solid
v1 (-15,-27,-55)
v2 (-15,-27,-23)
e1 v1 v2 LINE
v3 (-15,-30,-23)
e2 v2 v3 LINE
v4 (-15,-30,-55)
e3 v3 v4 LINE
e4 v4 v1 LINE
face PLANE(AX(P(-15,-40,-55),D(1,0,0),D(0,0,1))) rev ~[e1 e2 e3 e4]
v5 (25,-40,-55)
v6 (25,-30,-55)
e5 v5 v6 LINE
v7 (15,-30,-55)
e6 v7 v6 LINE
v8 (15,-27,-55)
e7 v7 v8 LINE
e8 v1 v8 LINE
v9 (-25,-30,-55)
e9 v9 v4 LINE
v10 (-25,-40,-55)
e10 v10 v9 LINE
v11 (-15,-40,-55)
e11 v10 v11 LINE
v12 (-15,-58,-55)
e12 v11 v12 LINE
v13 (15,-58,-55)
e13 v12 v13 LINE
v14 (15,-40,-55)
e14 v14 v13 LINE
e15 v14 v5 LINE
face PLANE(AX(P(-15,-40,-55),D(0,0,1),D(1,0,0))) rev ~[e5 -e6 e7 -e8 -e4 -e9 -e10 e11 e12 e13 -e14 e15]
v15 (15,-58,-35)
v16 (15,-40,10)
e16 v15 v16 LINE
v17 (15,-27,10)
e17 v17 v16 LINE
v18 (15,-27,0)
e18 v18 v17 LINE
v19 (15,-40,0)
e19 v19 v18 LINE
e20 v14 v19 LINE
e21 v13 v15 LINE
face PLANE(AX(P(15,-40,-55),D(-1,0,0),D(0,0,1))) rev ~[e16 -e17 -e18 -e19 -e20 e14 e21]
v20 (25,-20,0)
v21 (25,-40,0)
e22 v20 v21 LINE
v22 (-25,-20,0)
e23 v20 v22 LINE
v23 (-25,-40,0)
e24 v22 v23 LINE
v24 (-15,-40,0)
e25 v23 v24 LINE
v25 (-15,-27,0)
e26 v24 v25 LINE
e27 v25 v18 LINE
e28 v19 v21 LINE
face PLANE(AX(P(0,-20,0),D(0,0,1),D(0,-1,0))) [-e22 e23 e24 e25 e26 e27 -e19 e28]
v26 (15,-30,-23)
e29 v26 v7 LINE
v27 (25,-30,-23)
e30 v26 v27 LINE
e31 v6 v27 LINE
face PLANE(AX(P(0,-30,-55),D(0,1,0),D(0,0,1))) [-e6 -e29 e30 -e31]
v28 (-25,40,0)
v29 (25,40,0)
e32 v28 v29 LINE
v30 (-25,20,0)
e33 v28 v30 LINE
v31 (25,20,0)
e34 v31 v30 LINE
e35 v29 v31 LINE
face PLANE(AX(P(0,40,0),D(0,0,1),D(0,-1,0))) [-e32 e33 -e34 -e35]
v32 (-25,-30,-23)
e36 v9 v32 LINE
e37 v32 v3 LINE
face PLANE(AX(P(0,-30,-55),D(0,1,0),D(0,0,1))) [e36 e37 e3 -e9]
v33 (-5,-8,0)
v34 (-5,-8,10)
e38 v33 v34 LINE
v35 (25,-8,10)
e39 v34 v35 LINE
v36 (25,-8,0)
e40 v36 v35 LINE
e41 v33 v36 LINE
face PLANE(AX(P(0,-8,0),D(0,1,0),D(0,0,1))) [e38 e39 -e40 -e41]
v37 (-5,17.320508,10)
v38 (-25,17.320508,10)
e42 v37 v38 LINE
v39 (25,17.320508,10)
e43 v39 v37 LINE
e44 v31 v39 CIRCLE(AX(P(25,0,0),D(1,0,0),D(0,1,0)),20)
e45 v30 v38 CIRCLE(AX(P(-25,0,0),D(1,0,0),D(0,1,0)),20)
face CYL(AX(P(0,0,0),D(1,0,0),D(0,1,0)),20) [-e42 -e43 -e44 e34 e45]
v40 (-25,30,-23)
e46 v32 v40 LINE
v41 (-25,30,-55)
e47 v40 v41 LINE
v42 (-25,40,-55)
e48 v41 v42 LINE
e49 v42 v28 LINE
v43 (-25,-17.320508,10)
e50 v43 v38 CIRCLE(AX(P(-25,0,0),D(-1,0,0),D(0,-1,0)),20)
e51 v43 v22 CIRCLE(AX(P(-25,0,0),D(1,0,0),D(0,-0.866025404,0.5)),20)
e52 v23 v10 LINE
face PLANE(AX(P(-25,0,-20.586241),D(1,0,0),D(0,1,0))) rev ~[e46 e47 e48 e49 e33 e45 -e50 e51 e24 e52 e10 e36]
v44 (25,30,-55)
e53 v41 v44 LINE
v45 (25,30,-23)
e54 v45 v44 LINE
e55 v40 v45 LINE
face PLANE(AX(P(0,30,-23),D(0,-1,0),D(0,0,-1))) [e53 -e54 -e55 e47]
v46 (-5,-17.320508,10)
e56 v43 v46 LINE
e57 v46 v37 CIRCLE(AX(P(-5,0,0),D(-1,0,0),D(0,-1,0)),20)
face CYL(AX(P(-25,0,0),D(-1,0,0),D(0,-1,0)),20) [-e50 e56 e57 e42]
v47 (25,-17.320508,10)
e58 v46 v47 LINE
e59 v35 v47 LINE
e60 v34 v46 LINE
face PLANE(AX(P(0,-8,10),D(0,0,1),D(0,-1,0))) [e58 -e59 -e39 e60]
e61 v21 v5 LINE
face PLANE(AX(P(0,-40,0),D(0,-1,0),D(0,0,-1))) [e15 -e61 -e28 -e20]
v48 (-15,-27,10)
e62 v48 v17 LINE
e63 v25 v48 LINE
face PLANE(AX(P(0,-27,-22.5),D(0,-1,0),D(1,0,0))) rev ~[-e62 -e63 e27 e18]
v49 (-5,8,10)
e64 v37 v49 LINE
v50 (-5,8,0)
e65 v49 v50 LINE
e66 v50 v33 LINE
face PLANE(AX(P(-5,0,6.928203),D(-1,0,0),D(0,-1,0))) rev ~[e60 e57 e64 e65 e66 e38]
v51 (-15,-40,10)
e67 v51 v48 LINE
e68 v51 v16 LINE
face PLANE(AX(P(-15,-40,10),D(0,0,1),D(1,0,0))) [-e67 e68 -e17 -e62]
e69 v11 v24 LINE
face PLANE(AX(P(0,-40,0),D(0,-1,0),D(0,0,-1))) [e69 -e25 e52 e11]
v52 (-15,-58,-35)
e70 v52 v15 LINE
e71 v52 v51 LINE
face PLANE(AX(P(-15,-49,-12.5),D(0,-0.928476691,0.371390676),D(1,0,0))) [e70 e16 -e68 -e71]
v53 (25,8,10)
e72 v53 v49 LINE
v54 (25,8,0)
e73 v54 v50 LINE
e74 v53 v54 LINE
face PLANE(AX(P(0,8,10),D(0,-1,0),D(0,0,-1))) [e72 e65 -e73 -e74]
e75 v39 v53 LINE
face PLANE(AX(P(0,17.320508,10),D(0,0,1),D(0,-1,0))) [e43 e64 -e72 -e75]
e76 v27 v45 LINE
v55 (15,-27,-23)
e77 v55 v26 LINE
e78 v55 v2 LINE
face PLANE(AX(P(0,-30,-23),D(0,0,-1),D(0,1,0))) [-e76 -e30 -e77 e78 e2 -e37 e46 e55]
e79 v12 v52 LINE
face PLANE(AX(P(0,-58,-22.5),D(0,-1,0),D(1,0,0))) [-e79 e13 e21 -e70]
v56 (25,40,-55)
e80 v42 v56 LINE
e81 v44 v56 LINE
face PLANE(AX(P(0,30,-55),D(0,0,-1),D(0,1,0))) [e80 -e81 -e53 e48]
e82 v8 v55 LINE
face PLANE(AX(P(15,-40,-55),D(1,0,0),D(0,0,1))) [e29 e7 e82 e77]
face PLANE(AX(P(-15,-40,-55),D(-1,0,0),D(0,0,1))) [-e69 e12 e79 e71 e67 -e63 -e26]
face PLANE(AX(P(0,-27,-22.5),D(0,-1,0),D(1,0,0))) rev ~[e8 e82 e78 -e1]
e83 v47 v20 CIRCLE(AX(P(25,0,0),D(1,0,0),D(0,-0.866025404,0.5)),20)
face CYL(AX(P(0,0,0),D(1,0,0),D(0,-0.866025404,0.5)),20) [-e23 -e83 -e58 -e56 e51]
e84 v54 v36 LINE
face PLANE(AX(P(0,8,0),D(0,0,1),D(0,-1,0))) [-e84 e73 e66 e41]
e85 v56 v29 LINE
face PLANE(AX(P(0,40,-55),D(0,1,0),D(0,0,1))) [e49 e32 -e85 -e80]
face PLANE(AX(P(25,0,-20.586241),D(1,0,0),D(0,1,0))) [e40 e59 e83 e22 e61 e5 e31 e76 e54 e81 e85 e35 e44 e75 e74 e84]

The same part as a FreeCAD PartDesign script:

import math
import FreeCAD as App
import Part
import Sketcher


def edges_at(feature, points):
    """Names of the edges that pass closest to the given points."""
    edges = feature.Shape.Edges
    near = lambda p: min(range(len(edges)), key=lambda i: edges[i].distToShape(Part.Vertex(*p))[0])
    return sorted({f"Edge{near(p) + 1}" for p in points})


def add_polygon(sketch, points):
    """Adds a closed chain of lines whose ends are joined by coincident constraints."""
    first, n = sketch.GeometryCount, len(points)
    for a, b in zip(points, points[1:] + points[:1]):
        sketch.addGeometry(Part.LineSegment(App.Vector(*a, 0), App.Vector(*b, 0)), False)
    for i in range(n):
        sketch.addConstraint(Sketcher.Constraint("Coincident", first + i, 2, first + (i + 1) % n, 1))

doc = App.newDocument("Part")
body = doc.addObject("PartDesign::Body", "Body")

# Sketch on YZ plane
sketch1 = body.newObject("Sketcher::SketchObject", "Sketch")
sketch1.AttachmentSupport = (doc.getObject("YZ_Plane"), [""])
sketch1.MapMode = "FlatFace"
sketch1.addGeometry(Part.LineSegment(App.Vector(8, 0, 0), App.Vector(-8, 0, 0)), False)
sketch1.addGeometry(Part.LineSegment(App.Vector(-8, 0, 0), App.Vector(-8, 10, 0)), False)
sketch1.addGeometry(Part.LineSegment(App.Vector(-8, 10, 0), App.Vector(-17, 10, 0)), False)
sketch1.addGeometry(Part.ArcOfCircle(Part.Circle(App.Vector(0, 0, 0), App.Vector(0, 0, 1), 20), math.radians(150), math.radians(180)), False)
sketch1.addGeometry(Part.LineSegment(App.Vector(-20, 0, 0), App.Vector(-40, 0, 0)), False)
sketch1.addGeometry(Part.LineSegment(App.Vector(-40, 0, 0), App.Vector(-40, -55, 0)), False)
sketch1.addGeometry(Part.LineSegment(App.Vector(-40, -55, 0), App.Vector(-30, -55, 0)), False)
sketch1.addGeometry(Part.LineSegment(App.Vector(-30, -55, 0), App.Vector(-30, -23, 0)), False)
sketch1.addGeometry(Part.LineSegment(App.Vector(-30, -23, 0), App.Vector(30, -23, 0)), False)
sketch1.addGeometry(Part.LineSegment(App.Vector(30, -23, 0), App.Vector(30, -55, 0)), False)
sketch1.addGeometry(Part.LineSegment(App.Vector(30, -55, 0), App.Vector(40, -55, 0)), False)
sketch1.addGeometry(Part.LineSegment(App.Vector(40, -55, 0), App.Vector(40, 0, 0)), False)
sketch1.addGeometry(Part.LineSegment(App.Vector(40, 0, 0), App.Vector(20, 0, 0)), False)
sketch1.addGeometry(Part.ArcOfCircle(Part.Circle(App.Vector(0, 0, 0), App.Vector(0, 0, 1), 20), math.radians(0), math.radians(30)), False)
sketch1.addGeometry(Part.LineSegment(App.Vector(17, 10, 0), App.Vector(8, 10, 0)), False)
sketch1.addGeometry(Part.LineSegment(App.Vector(8, 10, 0), App.Vector(8, 0, 0)), False)
sketch1.addConstraint(Sketcher.Constraint("Coincident", 0, 2, 1, 1))
sketch1.addConstraint(Sketcher.Constraint("Coincident", 1, 2, 2, 1))
sketch1.addConstraint(Sketcher.Constraint("Coincident", 2, 2, 3, 1))
sketch1.addConstraint(Sketcher.Constraint("Coincident", 3, 2, 4, 1))
sketch1.addConstraint(Sketcher.Constraint("Coincident", 4, 2, 5, 1))
sketch1.addConstraint(Sketcher.Constraint("Coincident", 5, 2, 6, 1))
sketch1.addConstraint(Sketcher.Constraint("Coincident", 6, 2, 7, 1))
sketch1.addConstraint(Sketcher.Constraint("Coincident", 7, 2, 8, 1))
sketch1.addConstraint(Sketcher.Constraint("Coincident", 8, 2, 9, 1))
sketch1.addConstraint(Sketcher.Constraint("Coincident", 9, 2, 10, 1))
sketch1.addConstraint(Sketcher.Constraint("Coincident", 10, 2, 11, 1))
sketch1.addConstraint(Sketcher.Constraint("Coincident", 11, 2, 12, 1))
sketch1.addConstraint(Sketcher.Constraint("Coincident", 12, 2, 13, 1))
sketch1.addConstraint(Sketcher.Constraint("Coincident", 13, 2, 14, 1))
sketch1.addConstraint(Sketcher.Constraint("Coincident", 14, 2, 15, 1))
sketch1.addConstraint(Sketcher.Constraint("Coincident", 15, 2, 0, 1))
sketch1.addConstraint(Sketcher.Constraint("Horizontal", 0))
sketch1.addConstraint(Sketcher.Constraint("Vertical", 1))
sketch1.addConstraint(Sketcher.Constraint("Horizontal", 2))
sketch1.addConstraint(Sketcher.Constraint("Horizontal", 4))
sketch1.addConstraint(Sketcher.Constraint("Vertical", 5))
sketch1.addConstraint(Sketcher.Constraint("Horizontal", 6))
sketch1.addConstraint(Sketcher.Constraint("Vertical", 7))
sketch1.addConstraint(Sketcher.Constraint("Horizontal", 8))
sketch1.addConstraint(Sketcher.Constraint("Vertical", 9))
sketch1.addConstraint(Sketcher.Constraint("Horizontal", 10))
sketch1.addConstraint(Sketcher.Constraint("Vertical", 11))
sketch1.addConstraint(Sketcher.Constraint("Horizontal", 12))
sketch1.addConstraint(Sketcher.Constraint("Horizontal", 14))
sketch1.addConstraint(Sketcher.Constraint("Vertical", 15))
sketch1.addConstraint(Sketcher.Constraint("Coincident", 3, 3, -1, 1))
sketch1.addConstraint(Sketcher.Constraint("Coincident", 13, 3, -1, 1))
sketch1.addConstraint(Sketcher.Constraint("Equal", 3, 13))
sketch1.addConstraint(Sketcher.Constraint("Symmetric", 4, 2, 11, 2, -1, 1))
sketch1.addConstraint(Sketcher.Constraint("Symmetric", 0, 2, 15, 2, -1, 1))
sketch1.addConstraint(Sketcher.Constraint("Symmetric", 6, 2, 9, 2, -2))
sketch1.addConstraint(Sketcher.Constraint("PointOnObject", 3, 2, -1))
sketch1.addConstraint(Sketcher.Constraint("Horizontal", 2, 2, 13, 2))
sketch1.addConstraint(Sketcher.Constraint("Equal", 10, 1))
sketch1.addConstraint(Sketcher.Constraint("Radius", 3, 20.0))
sketch1.addConstraint(Sketcher.Constraint("DistanceX", 0, 2, 0, 1, 16.0))
sketch1.addConstraint(Sketcher.Constraint("DistanceX", 4, 2, 4, 1, 20.0))
sketch1.addConstraint(Sketcher.Constraint("DistanceX", 6, 1, 6, 2, 10.0))
sketch1.addConstraint(Sketcher.Constraint("DistanceY", 5, 2, 5, 1, 55.0))
sketch1.addConstraint(Sketcher.Constraint("DistanceY", 7, 1, 7, 2, 32.0))
pad1 = body.newObject("PartDesign::Pad", "Pad")
pad1.Profile = sketch1
pad1.Length = 50
pad1.Midplane = True

# Sketch on XZ plane
sketch2 = body.newObject("Sketcher::SketchObject", "Sketch001")
sketch2.AttachmentSupport = (doc.getObject("XZ_Plane"), [""])
sketch2.MapMode = "FlatFace"
sketch2.AttachmentOffset = App.Placement(App.Vector(0, 0, 40), App.Rotation())
add_polygon(sketch2, [(-15, 10), (-15, -55), (15, -55), (15, 10)])  # lines 0-3
sketch2.addConstraint(Sketcher.Constraint("Vertical", 0))
sketch2.addConstraint(Sketcher.Constraint("Horizontal", 1))
sketch2.addConstraint(Sketcher.Constraint("Vertical", 2))
sketch2.addConstraint(Sketcher.Constraint("Horizontal", 3))
sketch2.addConstraint(Sketcher.Constraint("DistanceX", 1, 1, 1, 2, 30.0))
sketch2.addConstraint(Sketcher.Constraint("DistanceY", 0, 2, 0, 1, 65.0))
sketch2.addConstraint(Sketcher.Constraint("DistanceX", 0, 2, -1, 1, 15.0))
sketch2.addConstraint(Sketcher.Constraint("DistanceY", 0, 2, -1, 1, 55.0))
pad2 = body.newObject("PartDesign::Pad", "Pad001")
pad2.Profile = sketch2
pad2.Type = "TwoLengths"
pad2.Length = 18
pad2.Length2 = 13
doc.recompute()

chamfer = body.newObject("PartDesign::Chamfer", "Chamfer")
chamfer.Base = (pad2, edges_at(pad2, [(0, -58, 10)]))
chamfer.ChamferType = "Two distances"
chamfer.Size = 45
chamfer.Size2 = 18

# Sketch on YZ plane
sketch3 = body.newObject("Sketcher::SketchObject", "Sketch002")
sketch3.AttachmentSupport = (doc.getObject("YZ_Plane"), [""])
sketch3.MapMode = "FlatFace"
sketch3.AttachmentOffset = App.Placement(App.Vector(0, 0, -25), App.Rotation())
sketch3.addGeometry(Part.LineSegment(App.Vector(20, 0, 0), App.Vector(-20, 0, 0)), False)
sketch3.addGeometry(Part.ArcOfCircle(Part.Circle(App.Vector(0, 0, 0), App.Vector(0, 0, 1), 20), math.radians(0), math.radians(180)), False)
sketch3.addConstraint(Sketcher.Constraint("Coincident", 0, 1, 1, 1))
sketch3.addConstraint(Sketcher.Constraint("Coincident", 1, 2, 0, 2))
sketch3.addConstraint(Sketcher.Constraint("Horizontal", 0))
sketch3.addConstraint(Sketcher.Constraint("Coincident", 1, 3, -1, 1))
sketch3.addConstraint(Sketcher.Constraint("PointOnObject", 0, 1, -1))
sketch3.addConstraint(Sketcher.Constraint("Radius", 1, 20.0))
pad3 = body.newObject("PartDesign::Pad", "Pad002")
pad3.Profile = sketch3
pad3.Length = 20

doc.recompute()
